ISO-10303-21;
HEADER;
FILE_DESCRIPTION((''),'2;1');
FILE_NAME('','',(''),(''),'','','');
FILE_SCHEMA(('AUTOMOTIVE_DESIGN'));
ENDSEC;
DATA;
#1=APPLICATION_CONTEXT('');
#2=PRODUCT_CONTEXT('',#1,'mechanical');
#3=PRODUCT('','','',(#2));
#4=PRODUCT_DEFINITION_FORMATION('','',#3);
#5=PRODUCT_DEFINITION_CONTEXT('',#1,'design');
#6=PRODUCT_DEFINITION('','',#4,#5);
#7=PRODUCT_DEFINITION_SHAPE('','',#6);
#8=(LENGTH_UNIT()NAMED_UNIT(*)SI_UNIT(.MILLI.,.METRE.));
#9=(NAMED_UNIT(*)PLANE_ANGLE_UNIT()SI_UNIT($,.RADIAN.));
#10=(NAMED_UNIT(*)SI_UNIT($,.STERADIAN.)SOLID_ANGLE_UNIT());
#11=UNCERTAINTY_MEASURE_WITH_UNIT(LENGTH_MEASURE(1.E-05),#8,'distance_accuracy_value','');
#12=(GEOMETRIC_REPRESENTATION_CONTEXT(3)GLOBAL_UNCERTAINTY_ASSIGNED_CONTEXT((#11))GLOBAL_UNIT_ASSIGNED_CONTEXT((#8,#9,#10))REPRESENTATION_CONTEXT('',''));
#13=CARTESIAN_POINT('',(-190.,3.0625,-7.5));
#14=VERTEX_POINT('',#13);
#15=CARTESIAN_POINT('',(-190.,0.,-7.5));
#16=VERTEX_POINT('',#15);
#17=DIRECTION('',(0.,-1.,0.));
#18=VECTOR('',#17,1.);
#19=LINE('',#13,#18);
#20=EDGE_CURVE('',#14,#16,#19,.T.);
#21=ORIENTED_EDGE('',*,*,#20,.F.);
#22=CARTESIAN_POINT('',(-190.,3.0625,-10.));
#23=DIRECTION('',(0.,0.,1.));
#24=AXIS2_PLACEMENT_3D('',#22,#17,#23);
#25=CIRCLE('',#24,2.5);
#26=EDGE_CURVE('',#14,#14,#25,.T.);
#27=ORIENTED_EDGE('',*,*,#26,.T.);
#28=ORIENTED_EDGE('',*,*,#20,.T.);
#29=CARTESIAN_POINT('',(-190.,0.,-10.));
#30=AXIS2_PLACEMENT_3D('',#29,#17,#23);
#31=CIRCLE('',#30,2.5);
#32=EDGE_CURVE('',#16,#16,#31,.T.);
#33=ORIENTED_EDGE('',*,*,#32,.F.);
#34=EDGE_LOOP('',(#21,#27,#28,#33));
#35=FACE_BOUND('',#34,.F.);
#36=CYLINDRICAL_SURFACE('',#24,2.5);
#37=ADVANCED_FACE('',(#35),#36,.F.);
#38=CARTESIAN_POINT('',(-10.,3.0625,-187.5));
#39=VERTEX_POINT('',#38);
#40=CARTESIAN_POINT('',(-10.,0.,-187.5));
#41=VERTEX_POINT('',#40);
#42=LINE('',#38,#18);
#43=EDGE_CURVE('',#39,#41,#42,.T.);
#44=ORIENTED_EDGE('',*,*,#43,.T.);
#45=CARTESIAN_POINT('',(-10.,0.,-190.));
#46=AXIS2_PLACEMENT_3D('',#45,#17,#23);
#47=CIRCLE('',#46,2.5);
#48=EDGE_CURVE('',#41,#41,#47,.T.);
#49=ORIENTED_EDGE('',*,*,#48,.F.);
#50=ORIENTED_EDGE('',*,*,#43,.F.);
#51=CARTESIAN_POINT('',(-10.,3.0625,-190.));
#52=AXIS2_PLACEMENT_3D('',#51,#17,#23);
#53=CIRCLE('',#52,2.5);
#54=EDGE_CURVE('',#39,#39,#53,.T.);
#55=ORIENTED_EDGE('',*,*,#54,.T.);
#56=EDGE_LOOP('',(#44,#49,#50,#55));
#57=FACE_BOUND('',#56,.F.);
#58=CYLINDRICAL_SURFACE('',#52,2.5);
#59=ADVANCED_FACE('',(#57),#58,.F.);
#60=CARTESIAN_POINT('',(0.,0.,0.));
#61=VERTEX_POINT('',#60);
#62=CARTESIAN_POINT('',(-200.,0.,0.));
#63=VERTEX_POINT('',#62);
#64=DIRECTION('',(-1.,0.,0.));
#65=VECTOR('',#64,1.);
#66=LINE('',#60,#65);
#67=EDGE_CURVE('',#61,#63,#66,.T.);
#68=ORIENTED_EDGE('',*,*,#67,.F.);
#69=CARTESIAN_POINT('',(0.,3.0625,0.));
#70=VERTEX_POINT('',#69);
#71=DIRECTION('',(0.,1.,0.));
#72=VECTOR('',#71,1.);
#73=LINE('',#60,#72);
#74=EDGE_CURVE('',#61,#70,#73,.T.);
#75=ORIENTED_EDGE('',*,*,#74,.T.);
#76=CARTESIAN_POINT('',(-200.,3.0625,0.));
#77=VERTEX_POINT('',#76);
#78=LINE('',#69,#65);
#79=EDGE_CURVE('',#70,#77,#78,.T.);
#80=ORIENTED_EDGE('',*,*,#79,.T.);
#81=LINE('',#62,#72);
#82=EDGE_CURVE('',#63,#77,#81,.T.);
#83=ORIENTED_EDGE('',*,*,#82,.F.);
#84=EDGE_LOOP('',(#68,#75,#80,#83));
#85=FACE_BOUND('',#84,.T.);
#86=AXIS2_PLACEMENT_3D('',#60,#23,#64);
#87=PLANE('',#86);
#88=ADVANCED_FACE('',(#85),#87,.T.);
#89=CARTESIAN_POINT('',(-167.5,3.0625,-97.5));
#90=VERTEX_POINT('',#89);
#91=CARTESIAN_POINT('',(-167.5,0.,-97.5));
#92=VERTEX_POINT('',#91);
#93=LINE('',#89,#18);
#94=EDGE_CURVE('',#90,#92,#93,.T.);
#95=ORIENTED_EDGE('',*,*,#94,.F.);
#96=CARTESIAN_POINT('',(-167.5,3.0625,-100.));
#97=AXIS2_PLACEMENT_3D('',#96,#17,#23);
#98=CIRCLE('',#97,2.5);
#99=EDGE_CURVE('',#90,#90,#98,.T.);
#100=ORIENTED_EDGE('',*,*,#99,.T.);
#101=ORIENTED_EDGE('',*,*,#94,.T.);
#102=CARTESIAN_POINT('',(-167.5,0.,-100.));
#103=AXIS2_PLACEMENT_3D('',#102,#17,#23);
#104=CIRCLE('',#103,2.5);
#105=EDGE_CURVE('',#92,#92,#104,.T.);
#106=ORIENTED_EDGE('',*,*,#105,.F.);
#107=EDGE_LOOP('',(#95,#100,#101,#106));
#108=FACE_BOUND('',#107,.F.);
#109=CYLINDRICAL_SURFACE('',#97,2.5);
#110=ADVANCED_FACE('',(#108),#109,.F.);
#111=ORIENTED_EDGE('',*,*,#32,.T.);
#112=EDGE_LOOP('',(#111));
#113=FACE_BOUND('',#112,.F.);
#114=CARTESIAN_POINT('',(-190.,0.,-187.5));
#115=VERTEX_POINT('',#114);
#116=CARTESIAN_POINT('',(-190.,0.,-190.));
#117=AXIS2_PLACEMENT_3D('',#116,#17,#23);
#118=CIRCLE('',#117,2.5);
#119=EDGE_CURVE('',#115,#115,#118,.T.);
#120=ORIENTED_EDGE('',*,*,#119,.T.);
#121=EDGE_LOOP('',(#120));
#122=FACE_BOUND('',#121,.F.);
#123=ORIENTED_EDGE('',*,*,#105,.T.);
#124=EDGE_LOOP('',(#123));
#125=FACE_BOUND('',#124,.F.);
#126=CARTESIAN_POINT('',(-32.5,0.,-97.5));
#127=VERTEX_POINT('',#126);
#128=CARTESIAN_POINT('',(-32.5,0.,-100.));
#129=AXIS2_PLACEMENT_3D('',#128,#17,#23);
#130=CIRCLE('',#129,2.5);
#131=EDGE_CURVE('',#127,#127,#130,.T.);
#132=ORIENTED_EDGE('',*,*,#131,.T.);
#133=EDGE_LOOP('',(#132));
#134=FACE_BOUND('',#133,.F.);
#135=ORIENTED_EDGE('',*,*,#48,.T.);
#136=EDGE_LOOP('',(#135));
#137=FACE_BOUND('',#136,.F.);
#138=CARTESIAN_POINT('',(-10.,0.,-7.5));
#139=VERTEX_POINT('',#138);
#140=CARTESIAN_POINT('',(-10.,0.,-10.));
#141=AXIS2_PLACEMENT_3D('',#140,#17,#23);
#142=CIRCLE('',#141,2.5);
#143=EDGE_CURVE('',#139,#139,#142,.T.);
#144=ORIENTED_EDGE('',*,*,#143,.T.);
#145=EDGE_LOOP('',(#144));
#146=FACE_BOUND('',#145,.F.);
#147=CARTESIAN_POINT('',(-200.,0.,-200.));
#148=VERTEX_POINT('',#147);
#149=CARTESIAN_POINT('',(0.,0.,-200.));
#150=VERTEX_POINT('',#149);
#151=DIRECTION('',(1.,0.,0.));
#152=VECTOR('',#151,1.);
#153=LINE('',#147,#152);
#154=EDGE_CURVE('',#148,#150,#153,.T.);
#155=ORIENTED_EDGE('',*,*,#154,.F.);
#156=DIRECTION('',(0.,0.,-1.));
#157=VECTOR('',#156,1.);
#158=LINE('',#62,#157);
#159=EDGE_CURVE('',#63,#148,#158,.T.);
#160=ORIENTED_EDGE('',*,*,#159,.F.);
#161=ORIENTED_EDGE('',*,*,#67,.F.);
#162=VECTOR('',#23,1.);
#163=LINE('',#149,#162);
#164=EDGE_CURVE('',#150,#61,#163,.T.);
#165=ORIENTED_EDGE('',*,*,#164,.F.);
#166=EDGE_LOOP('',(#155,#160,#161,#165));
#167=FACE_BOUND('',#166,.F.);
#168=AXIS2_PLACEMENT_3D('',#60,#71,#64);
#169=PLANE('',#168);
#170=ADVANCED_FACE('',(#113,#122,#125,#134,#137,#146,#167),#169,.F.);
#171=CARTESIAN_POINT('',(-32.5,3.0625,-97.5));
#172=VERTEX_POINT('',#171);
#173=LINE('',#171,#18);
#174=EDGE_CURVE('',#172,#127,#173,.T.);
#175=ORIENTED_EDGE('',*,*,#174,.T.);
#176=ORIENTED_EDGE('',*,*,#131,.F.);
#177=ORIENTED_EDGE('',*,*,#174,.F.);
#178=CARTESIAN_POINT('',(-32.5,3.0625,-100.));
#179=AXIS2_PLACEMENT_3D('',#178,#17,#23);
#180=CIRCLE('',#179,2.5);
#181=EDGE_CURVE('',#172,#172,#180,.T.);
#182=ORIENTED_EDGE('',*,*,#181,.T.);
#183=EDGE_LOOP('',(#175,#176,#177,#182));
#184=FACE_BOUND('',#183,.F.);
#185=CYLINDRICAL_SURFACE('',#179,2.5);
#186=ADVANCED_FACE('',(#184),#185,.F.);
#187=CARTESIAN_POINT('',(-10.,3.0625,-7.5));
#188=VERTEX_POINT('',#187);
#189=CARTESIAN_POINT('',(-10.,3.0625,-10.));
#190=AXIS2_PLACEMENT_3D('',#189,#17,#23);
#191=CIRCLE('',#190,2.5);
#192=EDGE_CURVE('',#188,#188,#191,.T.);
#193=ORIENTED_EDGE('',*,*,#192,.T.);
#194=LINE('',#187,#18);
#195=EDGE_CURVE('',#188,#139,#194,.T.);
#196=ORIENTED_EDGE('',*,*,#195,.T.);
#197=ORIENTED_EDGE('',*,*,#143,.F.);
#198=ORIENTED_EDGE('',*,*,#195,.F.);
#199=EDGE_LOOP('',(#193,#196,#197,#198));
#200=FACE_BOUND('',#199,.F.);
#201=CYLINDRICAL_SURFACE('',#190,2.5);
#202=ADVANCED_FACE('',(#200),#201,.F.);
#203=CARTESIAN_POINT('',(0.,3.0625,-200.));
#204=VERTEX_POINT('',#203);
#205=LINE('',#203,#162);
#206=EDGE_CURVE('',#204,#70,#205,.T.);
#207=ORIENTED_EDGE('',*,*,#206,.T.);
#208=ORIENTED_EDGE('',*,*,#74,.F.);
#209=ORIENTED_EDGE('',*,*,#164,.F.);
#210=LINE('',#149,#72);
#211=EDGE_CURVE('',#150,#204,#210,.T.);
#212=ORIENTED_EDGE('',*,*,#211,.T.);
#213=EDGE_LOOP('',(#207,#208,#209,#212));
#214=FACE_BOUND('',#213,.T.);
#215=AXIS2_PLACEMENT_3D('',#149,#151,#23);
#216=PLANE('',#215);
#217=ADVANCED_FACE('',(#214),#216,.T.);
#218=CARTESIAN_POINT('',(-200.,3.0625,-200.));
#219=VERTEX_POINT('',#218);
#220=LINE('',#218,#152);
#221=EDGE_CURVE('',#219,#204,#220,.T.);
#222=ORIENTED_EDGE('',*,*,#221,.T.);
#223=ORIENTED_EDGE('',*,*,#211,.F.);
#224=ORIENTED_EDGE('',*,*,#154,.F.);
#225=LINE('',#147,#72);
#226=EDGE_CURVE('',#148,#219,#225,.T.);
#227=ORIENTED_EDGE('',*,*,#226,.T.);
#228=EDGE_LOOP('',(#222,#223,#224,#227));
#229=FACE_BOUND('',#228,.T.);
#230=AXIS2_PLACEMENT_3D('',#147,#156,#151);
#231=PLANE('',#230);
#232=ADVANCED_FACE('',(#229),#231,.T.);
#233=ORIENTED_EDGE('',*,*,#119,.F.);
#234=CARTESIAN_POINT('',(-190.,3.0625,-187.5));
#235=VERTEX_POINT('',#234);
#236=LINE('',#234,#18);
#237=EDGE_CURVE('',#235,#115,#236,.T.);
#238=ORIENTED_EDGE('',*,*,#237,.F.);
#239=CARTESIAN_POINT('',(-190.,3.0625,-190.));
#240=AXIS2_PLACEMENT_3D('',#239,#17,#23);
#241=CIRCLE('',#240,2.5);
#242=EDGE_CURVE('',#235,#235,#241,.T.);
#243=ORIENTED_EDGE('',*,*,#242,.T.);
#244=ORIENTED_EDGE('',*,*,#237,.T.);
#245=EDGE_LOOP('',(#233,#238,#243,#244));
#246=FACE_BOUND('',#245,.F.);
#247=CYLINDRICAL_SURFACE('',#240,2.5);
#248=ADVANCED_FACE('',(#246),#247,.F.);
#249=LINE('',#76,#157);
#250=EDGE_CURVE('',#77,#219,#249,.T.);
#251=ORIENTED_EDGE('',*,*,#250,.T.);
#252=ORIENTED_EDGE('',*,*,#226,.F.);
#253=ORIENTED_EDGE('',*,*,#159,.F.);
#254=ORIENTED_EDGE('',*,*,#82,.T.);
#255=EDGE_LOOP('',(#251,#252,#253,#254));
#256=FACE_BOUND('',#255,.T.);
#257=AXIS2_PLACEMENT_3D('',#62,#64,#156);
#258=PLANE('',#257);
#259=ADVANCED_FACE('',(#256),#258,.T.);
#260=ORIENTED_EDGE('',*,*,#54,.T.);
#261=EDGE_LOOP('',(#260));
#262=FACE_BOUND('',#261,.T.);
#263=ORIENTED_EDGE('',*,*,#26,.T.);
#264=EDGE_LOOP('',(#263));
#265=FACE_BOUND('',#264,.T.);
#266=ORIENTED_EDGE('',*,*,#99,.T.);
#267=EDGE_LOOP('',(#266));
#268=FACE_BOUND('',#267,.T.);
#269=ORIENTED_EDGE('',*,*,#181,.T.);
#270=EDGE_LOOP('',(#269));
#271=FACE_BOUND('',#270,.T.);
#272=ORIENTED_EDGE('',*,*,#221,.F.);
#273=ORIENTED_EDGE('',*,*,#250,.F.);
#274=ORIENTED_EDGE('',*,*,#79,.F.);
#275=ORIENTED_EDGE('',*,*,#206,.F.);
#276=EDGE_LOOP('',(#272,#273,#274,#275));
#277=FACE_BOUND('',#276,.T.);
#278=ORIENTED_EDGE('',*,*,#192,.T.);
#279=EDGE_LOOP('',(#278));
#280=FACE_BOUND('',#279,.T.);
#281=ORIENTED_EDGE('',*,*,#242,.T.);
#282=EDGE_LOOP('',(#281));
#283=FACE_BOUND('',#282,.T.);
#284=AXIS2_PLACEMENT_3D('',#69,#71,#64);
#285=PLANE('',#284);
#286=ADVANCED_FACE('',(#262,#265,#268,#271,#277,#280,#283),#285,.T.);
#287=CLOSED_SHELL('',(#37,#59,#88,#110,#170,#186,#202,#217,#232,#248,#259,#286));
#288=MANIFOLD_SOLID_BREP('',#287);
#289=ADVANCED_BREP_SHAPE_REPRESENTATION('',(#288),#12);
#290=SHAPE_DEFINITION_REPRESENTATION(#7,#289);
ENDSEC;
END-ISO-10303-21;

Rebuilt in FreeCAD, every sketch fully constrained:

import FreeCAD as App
import Part
import Sketcher
from FreeCAD import Vector
Q = App.Units.Quantity


def add_polygon(sketch, points):
    """Adds a closed chain of lines whose ends are joined by coincident constraints."""
    first, n = sketch.GeometryCount, len(points)
    for a, b in zip(points, points[1:] + points[:1]):
        sketch.addGeometry(Part.LineSegment(App.Vector(*a, 0), App.Vector(*b, 0)), False)
    for i in range(n):
        sketch.addConstraint(Sketcher.Constraint("Coincident", first + i, 2, first + (i + 1) % n, 1))

doc = App.newDocument("Part")
params = doc.addObject("Spreadsheet::Sheet", "Params")
for row, (alias, value) in enumerate([
    ("sketch1_width", "200 mm"),
    ("pad1_length", "3.0625 mm"),
    ("sketch2_diameter", "5 mm"),
    ("hole_diameter", "5 mm"),
    ("sketch3_diameter", "5 mm"),
    ("hole2_diameter", "5 mm"),
    ("hole2_depth", "3.0625 mm"),
], start=1):
    params.set(f"A{row}", alias)
    params.set(f"B{row}", "=" + value)
    params.setAlias(f"B{row}", alias)

body = doc.addObject("PartDesign::Body", "Body")

# Sketch on XZ plane
sketch1 = body.newObject("Sketcher::SketchObject", "Sketch")
sketch1.AttachmentSupport = (doc.getObject("XZ_Plane"), [""])
sketch1.MapMode = "FlatFace"
add_polygon(sketch1, [(-200, 0), (0, 0), (0, -200), (-200, -200)])  # lines 0-3
sketch1.addConstraint([
    Sketcher.Constraint("Horizontal", 0),
    Sketcher.Constraint("Vertical", 1),
    Sketcher.Constraint("Horizontal", 2),
    Sketcher.Constraint("Vertical", 3),
    Sketcher.Constraint("Coincident", 0, 2, -1, 1),
    Sketcher.Constraint("Equal", 2, 1),
    Sketcher.Constraint("DistanceX", 0, 1, 0, 2, Q("200 mm")),
])
sketch1.setExpression("Constraints[10]", "Params.sketch1_width")
pad1 = body.newObject("PartDesign::Pad", "Pad")
pad1.Profile = sketch1
pad1.setExpression("Length", "Params.pad1_length")
pad1.Reversed = True

# Sketch on XZ plane
sketch2 = body.newObject("Sketcher::SketchObject", "Sketch001")
sketch2.AttachmentSupport = (doc.getObject("XZ_Plane"), [""])
sketch2.MapMode = "FlatFace"
sketch2.AttachmentOffset = App.Placement(Vector(0, 0, -3.0625), App.Rotation())
sketch2.addGeometry([
    Part.Circle(Vector(-10, -10, 0), Vector(0, 0, 1), 2.5),
    Part.Circle(Vector(-190, -10, 0), Vector(0, 0, 1), 2.5),
    Part.Circle(Vector(-190, -190, 0), Vector(0, 0, 1), 2.5),
    Part.Circle(Vector(-10, -190, 0), Vector(0, 0, 1), 2.5),
], False)
sketch2.addConstraint([
    Sketcher.Constraint("Equal", 0, 1),
    Sketcher.Constraint("Equal", 1, 2),
    Sketcher.Constraint("Equal", 2, 3),
    Sketcher.Constraint("Horizontal", 0, 3, 1, 3),
    Sketcher.Constraint("Horizontal", 2, 3, 3, 3),
    Sketcher.Constraint("Vertical", 1, 3, 2, 3),
    Sketcher.Constraint("Vertical", 0, 3, 3, 3),
    Sketcher.Constraint("Diameter", 0, Q("5 mm")),
    Sketcher.Constraint("DistanceX", 0, 3, -1, 1, Q("10 mm")),
    Sketcher.Constraint("DistanceY", 0, 3, -1, 1, Q("10 mm")),
    Sketcher.Constraint("DistanceX", 1, 3, -1, 1, Q("190 mm")),
    Sketcher.Constraint("DistanceY", 2, 3, -1, 1, Q("190 mm")),
])
sketch2.setExpression("Constraints[7]", "Params.sketch2_diameter")
doc.recompute()
hole = body.newObject("PartDesign::Hole", "Hole")
hole.Profile = sketch2
hole.ThreadType = "None"
hole.setExpression("Diameter", "Params.hole_diameter")
hole.DepthType = "ThroughAll"
hole.Reversed = True

# Sketch on XZ plane
sketch3 = body.newObject("Sketcher::SketchObject", "Sketch002")
sketch3.AttachmentSupport = (doc.getObject("XZ_Plane"), [""])
sketch3.MapMode = "FlatFace"
sketch3.AttachmentOffset = App.Placement(Vector(0, 0, -3.0625), App.Rotation())
sketch3.addGeometry([
    Part.Circle(Vector(-32.5, -100, 0), Vector(0, 0, 1), 2.5),
    Part.Circle(Vector(-167.5, -100, 0), Vector(0, 0, 1), 2.5),
], False)
sketch3.addConstraint([
    Sketcher.Constraint("Equal", 0, 1),
    Sketcher.Constraint("Horizontal", 0, 3, 1, 3),
    Sketcher.Constraint("Diameter", 0, Q("5 mm")),
    Sketcher.Constraint("DistanceY", 0, 3, -1, 1, Q("100 mm")),
    Sketcher.Constraint("DistanceX", 1, 3, 0, 3, Q("135 mm")),
    Sketcher.Constraint("DistanceX", 0, 3, -1, 1, Q("32.5 mm")),
])
sketch3.setExpression("Constraints[2]", "Params.sketch3_diameter")
doc.recompute()
hole2 = body.newObject("PartDesign::Hole", "Hole001")
hole2.Profile = sketch3
hole2.ThreadType = "None"
hole2.setExpression("Diameter", "Params.hole2_diameter")
hole2.DepthType = "Dimension"
hole2.setExpression("Depth", "Params.hole2_depth")
hole2.DrillPoint = "Flat"
hole2.Reversed = True

doc.recompute()
